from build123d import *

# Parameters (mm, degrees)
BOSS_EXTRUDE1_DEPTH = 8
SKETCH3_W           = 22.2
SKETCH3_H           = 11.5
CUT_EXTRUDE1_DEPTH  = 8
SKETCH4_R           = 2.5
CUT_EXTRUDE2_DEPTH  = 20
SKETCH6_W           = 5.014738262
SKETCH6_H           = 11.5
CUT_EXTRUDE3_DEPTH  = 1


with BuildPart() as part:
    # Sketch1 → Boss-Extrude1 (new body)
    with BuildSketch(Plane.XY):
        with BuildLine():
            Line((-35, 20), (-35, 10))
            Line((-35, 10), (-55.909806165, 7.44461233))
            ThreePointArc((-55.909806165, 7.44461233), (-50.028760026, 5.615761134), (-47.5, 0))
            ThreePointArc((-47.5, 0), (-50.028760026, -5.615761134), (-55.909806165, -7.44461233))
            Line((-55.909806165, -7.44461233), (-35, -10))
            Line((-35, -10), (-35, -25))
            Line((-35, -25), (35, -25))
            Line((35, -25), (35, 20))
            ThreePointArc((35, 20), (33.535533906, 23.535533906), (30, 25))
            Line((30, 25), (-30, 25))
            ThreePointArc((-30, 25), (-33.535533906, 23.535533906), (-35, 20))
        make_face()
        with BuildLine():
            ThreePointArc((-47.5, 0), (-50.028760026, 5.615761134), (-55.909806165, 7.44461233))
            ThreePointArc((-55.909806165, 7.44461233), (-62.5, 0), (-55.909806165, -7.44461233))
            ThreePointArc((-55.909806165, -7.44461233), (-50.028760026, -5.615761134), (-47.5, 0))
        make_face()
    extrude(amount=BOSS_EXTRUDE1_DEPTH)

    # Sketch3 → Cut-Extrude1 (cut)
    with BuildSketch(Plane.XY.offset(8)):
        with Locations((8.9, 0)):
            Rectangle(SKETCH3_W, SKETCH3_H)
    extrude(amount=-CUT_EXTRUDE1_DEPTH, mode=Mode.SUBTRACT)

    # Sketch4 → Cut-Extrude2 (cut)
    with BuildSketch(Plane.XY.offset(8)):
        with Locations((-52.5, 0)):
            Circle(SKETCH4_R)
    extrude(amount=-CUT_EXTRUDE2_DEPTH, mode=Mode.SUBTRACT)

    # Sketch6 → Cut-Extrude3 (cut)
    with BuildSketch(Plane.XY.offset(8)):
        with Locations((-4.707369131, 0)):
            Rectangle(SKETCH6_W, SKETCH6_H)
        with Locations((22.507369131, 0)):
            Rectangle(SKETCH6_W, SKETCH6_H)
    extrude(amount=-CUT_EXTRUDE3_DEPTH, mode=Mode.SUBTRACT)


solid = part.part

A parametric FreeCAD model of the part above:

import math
import FreeCAD as App
import Part
import Sketcher
Q = App.Units.Quantity

doc = App.newDocument("Part")
params = doc.addObject("Spreadsheet::Sheet", "Params")
for row, (alias, value) in enumerate([
    ("sketch1_radius", "5 mm"),
    ("sketch1_radius2", "7.5 mm"),
    ("sketch1_width", "70 mm"),
    ("sketch1_height", "10 mm"),
    ("sketch1_height2", "15 mm"),
    ("pad1_length", "8 mm"),
    ("sketch2_width", "22.2 mm"),
    ("sketch2_height", "11.5 mm"),
    ("pocket1_length", "8 mm"),
    ("sketch3_diameter", "5 mm"),
    ("pocket2_length", "20 mm"),
    ("sketch4_height", "11.5 mm"),
    ("pocket3_length", "1 mm"),
], start=1):
    params.set(f"A{row}", alias)
    params.set(f"B{row}", "=" + value)
    params.setAlias(f"B{row}", alias)

body = doc.addObject("PartDesign::Body", "Body")

# Sketch on XY plane
sketch1 = body.newObject("Sketcher::SketchObject", "Sketch")
sketch1.AttachmentSupport = (doc.getObject("XY_Plane"), [""])
sketch1.MapMode = "FlatFace"
sketch1.addGeometry(Part.LineSegment(App.Vector(-35, 20, 0), App.Vector(-35, 10, 0)), False)
sketch1.addGeometry(Part.LineSegment(App.Vector(-35, 10, 0), App.Vector(-56, 7, 0)), False)
sketch1.addGeometry(Part.ArcOfCircle(Part.Circle(App.Vector(-55, 0, 0), App.Vector(0, 0, 1), 8), math.radians(97), math.radians(263)), False)
sketch1.addGeometry(Part.LineSegment(App.Vector(-56, -7, 0), App.Vector(-35, -10, 0)), False)
sketch1.addGeometry(Part.LineSegment(App.Vector(-35, -10, 0), App.Vector(-35, -25, 0)), False)
sketch1.addGeometry(Part.LineSegment(App.Vector(-35, -25, 0), App.Vector(35, -25, 0)), False)
sketch1.addGeometry(Part.LineSegment(App.Vector(35, -25, 0), App.Vector(35, 20, 0)), False)
sketch1.addGeometry(Part.ArcOfCircle(Part.Circle(App.Vector(30, 20, 0), App.Vector(0, 0, 1), 5), math.radians(0), math.radians(90)), False)
sketch1.addGeometry(Part.LineSegment(App.Vector(30, 25, 0), App.Vector(-30, 25, 0)), False)
sketch1.addGeometry(Part.ArcOfCircle(Part.Circle(App.Vector(-30, 20, 0), App.Vector(0, 0, 1), 5), math.radians(90), math.radians(180)), False)
sketch1.addConstraint(Sketcher.Constraint("Coincident", 0, 2, 1, 1))
sketch1.addConstraint(Sketcher.Constraint("Tangent", 1, 2, 2, 1))
sketch1.addConstraint(Sketcher.Constraint("Tangent", 2, 2, 3, 1))
sketch1.addConstraint(Sketcher.Constraint("Coincident", 3, 2, 4, 1))
sketch1.addConstraint(Sketcher.Constraint("Coincident", 4, 2, 5, 1))
sketch1.addConstraint(Sketcher.Constraint("Coincident", 5, 2, 6, 1))
sketch1.addConstraint(Sketcher.Constraint("Tangent", 6, 2, 7, 1))
sketch1.addConstraint(Sketcher.Constraint("Tangent", 7, 2, 8, 1))
sketch1.addConstraint(Sketcher.Constraint("Tangent", 8, 2, 9, 1))
sketch1.addConstraint(Sketcher.Constraint("Tangent", 9, 2, 0, 1))
sketch1.addConstraint(Sketcher.Constraint("Vertical", 0))
sketch1.addConstraint(Sketcher.Constraint("Vertical", 4))
sketch1.addConstraint(Sketcher.Constraint("Horizontal", 5))
sketch1.addConstraint(Sketcher.Constraint("Vertical", 6))
sketch1.addConstraint(Sketcher.Constraint("Horizontal", 8))
sketch1.addConstraint(Sketcher.Constraint("Equal", 7, 9))
sketch1.addConstraint(Sketcher.Constraint("Symmetric", 1, 2, 2, 2, -1))
sketch1.addConstraint(Sketcher.Constraint("Vertical", 0, 2, 3, 2))
sketch1.addConstraint(Sketcher.Constraint("Radius", 7, Q("5 mm")))
sketch1.addConstraint(Sketcher.Constraint("Radius", 2, Q("7.5 mm")))
sketch1.addConstraint(Sketcher.Constraint("DistanceX", 5, 1, 5, 2, Q("70 mm")))
sketch1.addConstraint(Sketcher.Constraint("DistanceY", 0, 2, 0, 1, Q("10 mm")))
sketch1.addConstraint(Sketcher.Constraint("DistanceY", 4, 2, 4, 1, Q("15 mm")))
sketch1.addConstraint(Sketcher.Constraint("DistanceY", 6, 1, 6, 2, Q("45 mm")))
sketch1.addConstraint(Sketcher.Constraint("DistanceX", 2, 3, -1, 1, Q("55 mm")))
sketch1.addConstraint(Sketcher.Constraint("DistanceX", -1, 1, 7, 3, Q("30 mm")))
sketch1.setExpression("Constraints[18]", "Params.sketch1_radius")
sketch1.setExpression("Constraints[19]", "Params.sketch1_radius2")
sketch1.setExpression("Constraints[20]", "Params.sketch1_width")
sketch1.setExpression("Constraints[21]", "Params.sketch1_height")
sketch1.setExpression("Constraints[22]", "Params.sketch1_height2")
pad1 = body.newObject("PartDesign::Pad", "Pad")
pad1.Profile = sketch1
pad1.setExpression("Length", "Params.pad1_length")

# Sketch on XY plane
sketch2 = body.newObject("Sketcher::SketchObject", "Sketch001")
sketch2.AttachmentSupport = (doc.getObject("XY_Plane"), [""])
sketch2.MapMode = "FlatFace"
sketch2.AttachmentOffset = App.Placement(App.Vector(0, 0, 8), App.Rotation())
sketch2.addGeometry(Part.LineSegment(App.Vector(-2, 6, 0), App.Vector(-2, -6, 0)), False)
sketch2.addGeometry(Part.LineSegment(App.Vector(-2, -6, 0), App.Vector(20, -6, 0)), False)
sketch2.addGeometry(Part.LineSegment(App.Vector(20, -6, 0), App.Vector(20, 6, 0)), False)
sketch2.addGeometry(Part.LineSegment(App.Vector(20, 6, 0), App.Vector(-2, 6, 0)), False)
sketch2.addConstraint(Sketcher.Constraint("Coincident", 0, 2, 1, 1))
sketch2.addConstraint(Sketcher.Constraint("Coincident", 1, 2, 2, 1))
sketch2.addConstraint(Sketcher.Constraint("Coincident", 2, 2, 3, 1))
sketch2.addConstraint(Sketcher.Constraint("Coincident", 3, 2, 0, 1))
sketch2.addConstraint(Sketcher.Constraint("Vertical", 0))
sketch2.addConstraint(Sketcher.Constraint("Horizontal", 1))
sketch2.addConstraint(Sketcher.Constraint("Vertical", 2))
sketch2.addConstraint(Sketcher.Constraint("Horizontal", 3))
sketch2.addConstraint(Sketcher.Constraint("DistanceX", 1, 1, 1, 2, Q("22.2 mm")))
sketch2.addConstraint(Sketcher.Constraint("DistanceY", 0, 2, 0, 1, Q("11.5 mm")))
sketch2.addConstraint(Sketcher.Constraint("DistanceX", -1, 1, 1, 2, Q("20 mm")))
sketch2.addConstraint(Sketcher.Constraint("DistanceY", 0, 2, -1, 1, Q("5.75 mm")))
sketch2.setExpression("Constraints[8]", "Params.sketch2_width")
sketch2.setExpression("Constraints[9]", "Params.sketch2_height")
pocket1 = body.newObject("PartDesign::Pocket", "Pocket")
pocket1.Profile = sketch2
pocket1.setExpression("Length", "Params.pocket1_length")

# Sketch on XY plane
sketch3 = body.newObject("Sketcher::SketchObject", "Sketch002")
sketch3.AttachmentSupport = (doc.getObject("XY_Plane"), [""])
sketch3.MapMode = "FlatFace"
sketch3.AttachmentOffset = App.Placement(App.Vector(0, 0, 8), App.Rotation())
sketch3.addGeometry(Part.Circle(App.Vector(-52.5, 0, 0), App.Vector(0, 0, 1), 2.5), False)
sketch3.addConstraint(Sketcher.Constraint("PointOnObject", 0, 3, -1))
sketch3.addConstraint(Sketcher.Constraint("Diameter", 0, Q("5 mm")))
sketch3.addConstraint(Sketcher.Constraint("DistanceX", 0, 3, -1, 1, Q("52.5 mm")))
sketch3.setExpression("Constraints[1]", "Params.sketch3_diameter")
pocket2 = body.newObject("PartDesign::Pocket", "Pocket001")
pocket2.Profile = sketch3
pocket2.setExpression("Length", "Params.pocket2_length")

# Sketch on XY plane
sketch4 = body.newObject("Sketcher::SketchObject", "Sketch003")
sketch4.AttachmentSupport = (doc.getObject("XY_Plane"), [""])
sketch4.MapMode = "FlatFace"
sketch4.AttachmentOffset = App.Placement(App.Vector(0, 0, 8), App.Rotation())
sketch4.addGeometry(Part.LineSegment(App.Vector(-7, 6, 0), App.Vector(-7, -6, 0)), False)
sketch4.addGeometry(Part.LineSegment(App.Vector(-7, -6, 0), App.Vector(-2, -6, 0)), False)
sketch4.addGeometry(Part.LineSegment(App.Vector(-2, -6, 0), App.Vector(-2, 6, 0)), False)
sketch4.addGeometry(Part.LineSegment(App.Vector(-2, 6, 0), App.Vector(-7, 6, 0)), False)
sketch4.addGeometry(Part.LineSegment(App.Vector(20, 6, 0), App.Vector(20, -6, 0)), False)
sketch4.addGeometry(Part.LineSegment(App.Vector(20, -6, 0), App.Vector(25, -6, 0)), False)
sketch4.addGeometry(Part.LineSegment(App.Vector(25, -6, 0), App.Vector(25, 6, 0)), False)
sketch4.addGeometry(Part.LineSegment(App.Vector(25, 6, 0), App.Vector(20, 6, 0)), False)
sketch4.addConstraint(Sketcher.Constraint("Coincident", 0, 2, 1, 1))
sketch4.addConstraint(Sketcher.Constraint("Coincident", 1, 2, 2, 1))
sketch4.addConstraint(Sketcher.Constraint("Coincident", 2, 2, 3, 1))
sketch4.addConstraint(Sketcher.Constraint("Coincident", 3, 2, 0, 1))
sketch4.addConstraint(Sketcher.Constraint("Coincident", 4, 2, 5, 1))
sketch4.addConstraint(Sketcher.Constraint("Coincident", 5, 2, 6, 1))
sketch4.addConstraint(Sketcher.Constraint("Coincident", 6, 2, 7, 1))
sketch4.addConstraint(Sketcher.Constraint("Coincident", 7, 2, 4, 1))
sketch4.addConstraint(Sketcher.Constraint("Vertical", 0))
sketch4.addConstraint(Sketcher.Constraint("Horizontal", 1))
sketch4.addConstraint(Sketcher.Constraint("Vertical", 2))
sketch4.addConstraint(Sketcher.Constraint("Horizontal", 3))
sketch4.addConstraint(Sketcher.Constraint("Vertical", 4))
sketch4.addConstraint(Sketcher.Constraint("Horizontal", 5))
sketch4.addConstraint(Sketcher.Constraint("Vertical", 6))
sketch4.addConstraint(Sketcher.Constraint("Horizontal", 7))
sketch4.addConstraint(Sketcher.Constraint("Horizontal", 1, 2, 4, 2))
sketch4.addConstraint(Sketcher.Constraint("Horizontal", 3, 2, 6, 2))
sketch4.addConstraint(Sketcher.Constraint("Equal", 3, 5))
sketch4.addConstraint(Sketcher.Constraint("DistanceY", 0, 2, 0, 1, Q("11.5 mm")))
sketch4.addConstraint(Sketcher.Constraint("DistanceX", -1, 1, 4, 2, Q("20 mm")))
sketch4.addConstraint(Sketcher.Constraint("DistanceX", 1, 2, -1, 1, Q("2.2 mm")))
sketch4.addConstraint(Sketcher.Constraint("DistanceY", 0, 2, -1, 1, Q("5.75 mm")))
sketch4.addConstraint(Sketcher.Constraint("DistanceX", 1, 1, 1, 2, Q("5.014738 mm")))
sketch4.setExpression("Constraints[19]", "Params.sketch4_height")
pocket3 = body.newObject("PartDesign::Pocket", "Pocket002")
pocket3.Profile = sketch4
pocket3.setExpression("Length", "Params.pocket3_length")

doc.recompute()
